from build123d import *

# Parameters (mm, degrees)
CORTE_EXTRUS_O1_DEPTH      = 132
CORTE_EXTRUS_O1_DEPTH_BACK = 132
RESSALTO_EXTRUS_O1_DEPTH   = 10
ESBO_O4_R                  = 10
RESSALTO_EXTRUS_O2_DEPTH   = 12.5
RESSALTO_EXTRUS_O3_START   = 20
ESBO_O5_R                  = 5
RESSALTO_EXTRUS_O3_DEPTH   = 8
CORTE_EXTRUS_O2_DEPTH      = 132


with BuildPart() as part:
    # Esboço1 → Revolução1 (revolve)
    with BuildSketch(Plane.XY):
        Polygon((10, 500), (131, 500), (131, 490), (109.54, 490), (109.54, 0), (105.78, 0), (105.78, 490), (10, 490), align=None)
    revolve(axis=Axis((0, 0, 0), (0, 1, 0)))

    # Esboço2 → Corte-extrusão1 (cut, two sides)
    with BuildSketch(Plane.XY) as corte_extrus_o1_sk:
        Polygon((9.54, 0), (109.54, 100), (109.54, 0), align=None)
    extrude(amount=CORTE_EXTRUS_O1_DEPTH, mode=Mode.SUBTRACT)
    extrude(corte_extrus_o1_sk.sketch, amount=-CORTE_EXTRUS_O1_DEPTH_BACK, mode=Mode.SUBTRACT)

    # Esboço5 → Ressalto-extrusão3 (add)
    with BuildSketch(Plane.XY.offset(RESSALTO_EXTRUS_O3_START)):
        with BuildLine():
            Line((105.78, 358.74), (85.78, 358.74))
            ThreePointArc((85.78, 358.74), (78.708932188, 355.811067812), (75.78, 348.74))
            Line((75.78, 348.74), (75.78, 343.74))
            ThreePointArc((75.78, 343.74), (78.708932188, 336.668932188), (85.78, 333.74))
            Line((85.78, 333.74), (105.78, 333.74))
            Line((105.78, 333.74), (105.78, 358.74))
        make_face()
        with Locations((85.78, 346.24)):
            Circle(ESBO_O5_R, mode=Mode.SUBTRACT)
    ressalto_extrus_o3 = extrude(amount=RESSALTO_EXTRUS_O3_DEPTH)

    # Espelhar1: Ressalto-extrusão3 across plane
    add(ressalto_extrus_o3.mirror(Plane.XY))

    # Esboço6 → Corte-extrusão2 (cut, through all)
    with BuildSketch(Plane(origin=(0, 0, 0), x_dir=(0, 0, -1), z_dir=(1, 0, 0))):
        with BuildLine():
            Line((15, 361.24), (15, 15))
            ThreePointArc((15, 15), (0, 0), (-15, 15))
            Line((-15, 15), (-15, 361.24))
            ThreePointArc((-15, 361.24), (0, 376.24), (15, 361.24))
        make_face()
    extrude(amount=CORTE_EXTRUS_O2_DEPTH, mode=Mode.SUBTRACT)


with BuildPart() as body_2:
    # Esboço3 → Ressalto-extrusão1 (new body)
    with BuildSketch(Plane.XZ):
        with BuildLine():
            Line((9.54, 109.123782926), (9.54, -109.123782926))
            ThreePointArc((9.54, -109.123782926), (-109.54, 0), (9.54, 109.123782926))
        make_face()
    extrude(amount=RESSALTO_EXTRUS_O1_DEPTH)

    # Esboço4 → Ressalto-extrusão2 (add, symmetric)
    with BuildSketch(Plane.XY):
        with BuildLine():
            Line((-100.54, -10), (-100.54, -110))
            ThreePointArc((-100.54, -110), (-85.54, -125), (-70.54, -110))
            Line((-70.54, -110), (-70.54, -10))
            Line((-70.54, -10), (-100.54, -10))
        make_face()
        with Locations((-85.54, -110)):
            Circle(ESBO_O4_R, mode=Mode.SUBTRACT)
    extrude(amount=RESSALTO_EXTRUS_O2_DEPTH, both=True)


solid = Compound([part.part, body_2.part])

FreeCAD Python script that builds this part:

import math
import FreeCAD as App
import Part
import Sketcher
Q = App.Units.Quantity


def add_polygon(sketch, points):
    """Adds a closed chain of lines whose ends are joined by coincident constraints."""
    first, n = sketch.GeometryCount, len(points)
    for a, b in zip(points, points[1:] + points[:1]):
        sketch.addGeometry(Part.LineSegment(App.Vector(*a, 0), App.Vector(*b, 0)), False)
    for i in range(n):
        sketch.addConstraint(Sketcher.Constraint("Coincident", first + i, 2, first + (i + 1) % n, 1))

doc = App.newDocument("Part")
body = doc.addObject("PartDesign::Body", "Body")

# Sketch on XY plane
sketch1 = body.newObject("Sketcher::SketchObject", "Sketch")
sketch1.AttachmentSupport = (doc.getObject("XY_Plane"), [""])
sketch1.MapMode = "FlatFace"
add_polygon(sketch1, [(131, 500), (10, 500), (10, 490), (105.8, 490), (105.8, 0), (109.5, 0), (109.5, 490), (131, 490)])  # lines 0-7
sketch1.addConstraint([
    Sketcher.Constraint("Horizontal", 0),
    Sketcher.Constraint("Vertical", 1),
    Sketcher.Constraint("Horizontal", 2),
    Sketcher.Constraint("Vertical", 3),
    Sketcher.Constraint("Horizontal", 4),
    Sketcher.Constraint("Vertical", 5),
    Sketcher.Constraint("Horizontal", 6),
    Sketcher.Constraint("Vertical", 7),
    Sketcher.Constraint("PointOnObject", 3, 2, -1),
    Sketcher.Constraint("Horizontal", 2, 2, 5, 2),
    Sketcher.Constraint("DistanceX", 0, 2, 0, 1, Q("121 mm")),
    Sketcher.Constraint("DistanceY", 1, 2, 1, 1, Q("10 mm")),
    Sketcher.Constraint("DistanceY", 3, 2, 3, 1, Q("490 mm")),
    Sketcher.Constraint("DistanceX", -1, 1, 0, 2, Q("10 mm")),
    Sketcher.Constraint("DistanceX", 2, 1, 2, 2, Q("95.78 mm")),
    Sketcher.Constraint("DistanceX", 4, 1, 4, 2, Q("3.76 mm")),
])
revolution = body.newObject("PartDesign::Revolution", "Revolution")
revolution.Profile = sketch1
revolution.ReferenceAxis = (sketch1, ["V_Axis"])
revolution.Angle = 360

# Sketch on XY plane
sketch2 = body.newObject("Sketcher::SketchObject", "Sketch001")
sketch2.AttachmentSupport = (doc.getObject("XY_Plane"), [""])
sketch2.MapMode = "FlatFace"
add_polygon(sketch2, [(110, 100), (10, 0), (110, 0)])  # lines 0-2
sketch2.addConstraint([
    Sketcher.Constraint("Horizontal", 1),
    Sketcher.Constraint("Vertical", 2),
    Sketcher.Constraint("PointOnObject", 0, 2, -1),
    Sketcher.Constraint("Equal", 1, 2),
    Sketcher.Constraint("DistanceX", 1, 1, 1, 2, Q("100 mm")),
    Sketcher.Constraint("DistanceX", -1, 1, 0, 2, Q("9.54 mm")),
])
pocket1 = body.newObject("PartDesign::Pocket", "Pocket")
pocket1.Profile = sketch2
pocket1.Type = "ThroughAll"
pocket1.Midplane = True

# Sketch on XY plane
sketch3 = body.newObject("Sketcher::SketchObject", "Sketch002")
sketch3.AttachmentSupport = (doc.getObject("XY_Plane"), [""])
sketch3.MapMode = "FlatFace"
sketch3.AttachmentOffset = App.Placement(App.Vector(0, 0, 20), App.Rotation())
sketch3.addGeometry([
    Part.LineSegment(App.Vector(106, 359, 0), App.Vector(86, 359, 0)),  # 0
    Part.ArcOfCircle(Part.Circle(App.Vector(86, 349, 0), App.Vector(0, 0, 1), 10), math.radians(90), math.radians(180)),  # 1
    Part.LineSegment(App.Vector(76, 349, 0), App.Vector(76, 344, 0)),  # 2
    Part.ArcOfCircle(Part.Circle(App.Vector(86, 344, 0), App.Vector(0, 0, 1), 10), math.radians(180), math.radians(270)),  # 3
    Part.LineSegment(App.Vector(86, 334, 0), App.Vector(106, 334, 0)),  # 4
    Part.LineSegment(App.Vector(106, 334, 0), App.Vector(106, 359, 0)),  # 5
    Part.Circle(App.Vector(86, 346, 0), App.Vector(0, 0, 1), 5),  # 6
], False)
sketch3.addConstraint([
    Sketcher.Constraint("Tangent", 0, 2, 1, 1),
    Sketcher.Constraint("Tangent", 1, 2, 2, 1),
    Sketcher.Constraint("Tangent", 2, 2, 3, 1),
    Sketcher.Constraint("Tangent", 3, 2, 4, 1),
    Sketcher.Constraint("Coincident", 4, 2, 5, 1),
    Sketcher.Constraint("Coincident", 5, 2, 0, 1),
    Sketcher.Constraint("Horizontal", 0),
    Sketcher.Constraint("Vertical", 2),
    Sketcher.Constraint("Horizontal", 4),
    Sketcher.Constraint("Vertical", 5),
    Sketcher.Constraint("Equal", 1, 3),
    Sketcher.Constraint("Vertical", 3, 3, 6, 3),
    Sketcher.Constraint("Diameter", 6, Q("10 mm")),
    Sketcher.Constraint("Radius", 1, Q("10 mm")),
    Sketcher.Constraint("DistanceX", 0, 2, 0, 1, Q("20 mm")),
    Sketcher.Constraint("DistanceY", 2, 2, 2, 1, Q("5 mm")),
    Sketcher.Constraint("DistanceY", 6, 3, 1, 3, Q("2.5 mm")),
    Sketcher.Constraint("DistanceX", -1, 1, 1, 3, Q("85.78 mm")),
    Sketcher.Constraint("DistanceY", -1, 1, 1, 3, Q("348.74 mm")),
])
pad1 = body.newObject("PartDesign::Pad", "Pad")
pad1.Profile = sketch3
pad1.Length = 8
doc.recompute()

mirrored = body.newObject("PartDesign::Mirrored", "Mirrored")
mirrored.Originals = [pad1]
mirrored.MirrorPlane = (doc.getObject("XY_Plane"), [""])
body.Tip = mirrored

# Sketch on YZ plane
sketch4 = body.newObject("Sketcher::SketchObject", "Sketch003")
sketch4.AttachmentSupport = (doc.getObject("YZ_Plane"), [""])
sketch4.MapMode = "FlatFace"
sketch4.addGeometry([
    Part.LineSegment(App.Vector(15, -15, 0), App.Vector(361, -15, 0)),
    Part.ArcOfCircle(Part.Circle(App.Vector(361, 0, 0), App.Vector(0, 0, 1), 15), math.radians(-90), math.radians(90)),
    Part.LineSegment(App.Vector(361, 15, 0), App.Vector(15, 15, 0)),
    Part.ArcOfCircle(Part.Circle(App.Vector(15, 0, 0), App.Vector(0, 0, 1), 15), math.radians(90), math.radians(270)),
], False)
sketch4.addConstraint([
    Sketcher.Constraint("Tangent", 0, 2, 1, 1),
    Sketcher.Constraint("Tangent", 1, 2, 2, 1),
    Sketcher.Constraint("Tangent", 2, 2, 3, 1),
    Sketcher.Constraint("Tangent", 3, 2, 0, 1),
    Sketcher.Constraint("Horizontal", 0),
    Sketcher.Constraint("Horizontal", 2),
    Sketcher.Constraint("PointOnObject", 1, 3, -1),
    Sketcher.Constraint("Radius", 1, Q("15 mm")),
    Sketcher.Constraint("DistanceX", -1, 1, 3, 3, Q("15 mm")),
    Sketcher.Constraint("DistanceX", 0, 1, 0, 2, Q("346.24 mm")),
])
pocket2 = body.newObject("PartDesign::Pocket", "Pocket001")
pocket2.Profile = sketch4
pocket2.Type = "ThroughAll"
pocket2.Reversed = True
body2 = doc.addObject("PartDesign::Body", "Body001")

# Sketch on XZ plane
sketch5 = body2.newObject("Sketcher::SketchObject", "Sketch004")
sketch5.AttachmentSupport = (doc.getObject("XZ_Plane001"), [""])
sketch5.MapMode = "FlatFace"
sketch5.addGeometry([
    Part.LineSegment(App.Vector(10, -109, 0), App.Vector(10, 109, 0)),
    Part.ArcOfCircle(Part.Circle(App.Vector(0, 0, 0), App.Vector(0, 0, 1), 110), math.radians(85), math.radians(275)),
], False)
sketch5.addConstraint([
    Sketcher.Constraint("Coincident", 0, 1, 1, 2),
    Sketcher.Constraint("Coincident", 1, 1, 0, 2),
    Sketcher.Constraint("Vertical", 0),
    Sketcher.Constraint("Coincident", 1, 3, -1, 1),
    Sketcher.Constraint("Radius", 1, Q("109.54 mm")),
    Sketcher.Constraint("DistanceX", -1, 1, 0, 1, Q("9.54 mm")),
])
pad2 = body2.newObject("PartDesign::Pad", "Pad001")
pad2.Profile = sketch5
pad2.Length = 10

# Sketch on XY plane
sketch6 = body2.newObject("Sketcher::SketchObject", "Sketch005")
sketch6.AttachmentSupport = (doc.getObject("XY_Plane001"), [""])
sketch6.MapMode = "FlatFace"
sketch6.addGeometry([
    Part.LineSegment(App.Vector(-101, -10, 0), App.Vector(-101, -110, 0)),  # 0
    Part.ArcOfCircle(Part.Circle(App.Vector(-86, -110, 0), App.Vector(0, 0, 1), 15), math.radians(180), math.radians(360)),  # 1
    Part.LineSegment(App.Vector(-71, -110, 0), App.Vector(-71, -10, 0)),  # 2
    Part.LineSegment(App.Vector(-71, -10, 0), App.Vector(-101, -10, 0)),  # 3
    Part.Circle(App.Vector(-86, -110, 0), App.Vector(0, 0, 1), 10),  # 4
], False)
sketch6.addConstraint([
    Sketcher.Constraint("Tangent", 0, 2, 1, 1),
    Sketcher.Constraint("Tangent", 1, 2, 2, 1),
    Sketcher.Constraint("Coincident", 2, 2, 3, 1),
    Sketcher.Constraint("Coincident", 3, 2, 0, 1),
    Sketcher.Constraint("Vertical", 0),
    Sketcher.Constraint("Vertical", 2),
    Sketcher.Constraint("Horizontal", 3),
    Sketcher.Constraint("Coincident", 4, 3, 1, 3),
    Sketcher.Constraint("Diameter", 4, Q("20 mm")),
    Sketcher.Constraint("Radius", 1, Q("15 mm")),
    Sketcher.Constraint("DistanceY", 0, 2, 0, 1, Q("100 mm")),
    Sketcher.Constraint("DistanceY", 1, 3, -1, 1, Q("110 mm")),
    Sketcher.Constraint("DistanceX", 1, 3, -1, 1, Q("85.54 mm")),
])
pad3 = body2.newObject("PartDesign::Pad", "Pad002")
pad3.Profile = sketch6
pad3.Length = 25
pad3.Midplane = True

doc.recompute()
